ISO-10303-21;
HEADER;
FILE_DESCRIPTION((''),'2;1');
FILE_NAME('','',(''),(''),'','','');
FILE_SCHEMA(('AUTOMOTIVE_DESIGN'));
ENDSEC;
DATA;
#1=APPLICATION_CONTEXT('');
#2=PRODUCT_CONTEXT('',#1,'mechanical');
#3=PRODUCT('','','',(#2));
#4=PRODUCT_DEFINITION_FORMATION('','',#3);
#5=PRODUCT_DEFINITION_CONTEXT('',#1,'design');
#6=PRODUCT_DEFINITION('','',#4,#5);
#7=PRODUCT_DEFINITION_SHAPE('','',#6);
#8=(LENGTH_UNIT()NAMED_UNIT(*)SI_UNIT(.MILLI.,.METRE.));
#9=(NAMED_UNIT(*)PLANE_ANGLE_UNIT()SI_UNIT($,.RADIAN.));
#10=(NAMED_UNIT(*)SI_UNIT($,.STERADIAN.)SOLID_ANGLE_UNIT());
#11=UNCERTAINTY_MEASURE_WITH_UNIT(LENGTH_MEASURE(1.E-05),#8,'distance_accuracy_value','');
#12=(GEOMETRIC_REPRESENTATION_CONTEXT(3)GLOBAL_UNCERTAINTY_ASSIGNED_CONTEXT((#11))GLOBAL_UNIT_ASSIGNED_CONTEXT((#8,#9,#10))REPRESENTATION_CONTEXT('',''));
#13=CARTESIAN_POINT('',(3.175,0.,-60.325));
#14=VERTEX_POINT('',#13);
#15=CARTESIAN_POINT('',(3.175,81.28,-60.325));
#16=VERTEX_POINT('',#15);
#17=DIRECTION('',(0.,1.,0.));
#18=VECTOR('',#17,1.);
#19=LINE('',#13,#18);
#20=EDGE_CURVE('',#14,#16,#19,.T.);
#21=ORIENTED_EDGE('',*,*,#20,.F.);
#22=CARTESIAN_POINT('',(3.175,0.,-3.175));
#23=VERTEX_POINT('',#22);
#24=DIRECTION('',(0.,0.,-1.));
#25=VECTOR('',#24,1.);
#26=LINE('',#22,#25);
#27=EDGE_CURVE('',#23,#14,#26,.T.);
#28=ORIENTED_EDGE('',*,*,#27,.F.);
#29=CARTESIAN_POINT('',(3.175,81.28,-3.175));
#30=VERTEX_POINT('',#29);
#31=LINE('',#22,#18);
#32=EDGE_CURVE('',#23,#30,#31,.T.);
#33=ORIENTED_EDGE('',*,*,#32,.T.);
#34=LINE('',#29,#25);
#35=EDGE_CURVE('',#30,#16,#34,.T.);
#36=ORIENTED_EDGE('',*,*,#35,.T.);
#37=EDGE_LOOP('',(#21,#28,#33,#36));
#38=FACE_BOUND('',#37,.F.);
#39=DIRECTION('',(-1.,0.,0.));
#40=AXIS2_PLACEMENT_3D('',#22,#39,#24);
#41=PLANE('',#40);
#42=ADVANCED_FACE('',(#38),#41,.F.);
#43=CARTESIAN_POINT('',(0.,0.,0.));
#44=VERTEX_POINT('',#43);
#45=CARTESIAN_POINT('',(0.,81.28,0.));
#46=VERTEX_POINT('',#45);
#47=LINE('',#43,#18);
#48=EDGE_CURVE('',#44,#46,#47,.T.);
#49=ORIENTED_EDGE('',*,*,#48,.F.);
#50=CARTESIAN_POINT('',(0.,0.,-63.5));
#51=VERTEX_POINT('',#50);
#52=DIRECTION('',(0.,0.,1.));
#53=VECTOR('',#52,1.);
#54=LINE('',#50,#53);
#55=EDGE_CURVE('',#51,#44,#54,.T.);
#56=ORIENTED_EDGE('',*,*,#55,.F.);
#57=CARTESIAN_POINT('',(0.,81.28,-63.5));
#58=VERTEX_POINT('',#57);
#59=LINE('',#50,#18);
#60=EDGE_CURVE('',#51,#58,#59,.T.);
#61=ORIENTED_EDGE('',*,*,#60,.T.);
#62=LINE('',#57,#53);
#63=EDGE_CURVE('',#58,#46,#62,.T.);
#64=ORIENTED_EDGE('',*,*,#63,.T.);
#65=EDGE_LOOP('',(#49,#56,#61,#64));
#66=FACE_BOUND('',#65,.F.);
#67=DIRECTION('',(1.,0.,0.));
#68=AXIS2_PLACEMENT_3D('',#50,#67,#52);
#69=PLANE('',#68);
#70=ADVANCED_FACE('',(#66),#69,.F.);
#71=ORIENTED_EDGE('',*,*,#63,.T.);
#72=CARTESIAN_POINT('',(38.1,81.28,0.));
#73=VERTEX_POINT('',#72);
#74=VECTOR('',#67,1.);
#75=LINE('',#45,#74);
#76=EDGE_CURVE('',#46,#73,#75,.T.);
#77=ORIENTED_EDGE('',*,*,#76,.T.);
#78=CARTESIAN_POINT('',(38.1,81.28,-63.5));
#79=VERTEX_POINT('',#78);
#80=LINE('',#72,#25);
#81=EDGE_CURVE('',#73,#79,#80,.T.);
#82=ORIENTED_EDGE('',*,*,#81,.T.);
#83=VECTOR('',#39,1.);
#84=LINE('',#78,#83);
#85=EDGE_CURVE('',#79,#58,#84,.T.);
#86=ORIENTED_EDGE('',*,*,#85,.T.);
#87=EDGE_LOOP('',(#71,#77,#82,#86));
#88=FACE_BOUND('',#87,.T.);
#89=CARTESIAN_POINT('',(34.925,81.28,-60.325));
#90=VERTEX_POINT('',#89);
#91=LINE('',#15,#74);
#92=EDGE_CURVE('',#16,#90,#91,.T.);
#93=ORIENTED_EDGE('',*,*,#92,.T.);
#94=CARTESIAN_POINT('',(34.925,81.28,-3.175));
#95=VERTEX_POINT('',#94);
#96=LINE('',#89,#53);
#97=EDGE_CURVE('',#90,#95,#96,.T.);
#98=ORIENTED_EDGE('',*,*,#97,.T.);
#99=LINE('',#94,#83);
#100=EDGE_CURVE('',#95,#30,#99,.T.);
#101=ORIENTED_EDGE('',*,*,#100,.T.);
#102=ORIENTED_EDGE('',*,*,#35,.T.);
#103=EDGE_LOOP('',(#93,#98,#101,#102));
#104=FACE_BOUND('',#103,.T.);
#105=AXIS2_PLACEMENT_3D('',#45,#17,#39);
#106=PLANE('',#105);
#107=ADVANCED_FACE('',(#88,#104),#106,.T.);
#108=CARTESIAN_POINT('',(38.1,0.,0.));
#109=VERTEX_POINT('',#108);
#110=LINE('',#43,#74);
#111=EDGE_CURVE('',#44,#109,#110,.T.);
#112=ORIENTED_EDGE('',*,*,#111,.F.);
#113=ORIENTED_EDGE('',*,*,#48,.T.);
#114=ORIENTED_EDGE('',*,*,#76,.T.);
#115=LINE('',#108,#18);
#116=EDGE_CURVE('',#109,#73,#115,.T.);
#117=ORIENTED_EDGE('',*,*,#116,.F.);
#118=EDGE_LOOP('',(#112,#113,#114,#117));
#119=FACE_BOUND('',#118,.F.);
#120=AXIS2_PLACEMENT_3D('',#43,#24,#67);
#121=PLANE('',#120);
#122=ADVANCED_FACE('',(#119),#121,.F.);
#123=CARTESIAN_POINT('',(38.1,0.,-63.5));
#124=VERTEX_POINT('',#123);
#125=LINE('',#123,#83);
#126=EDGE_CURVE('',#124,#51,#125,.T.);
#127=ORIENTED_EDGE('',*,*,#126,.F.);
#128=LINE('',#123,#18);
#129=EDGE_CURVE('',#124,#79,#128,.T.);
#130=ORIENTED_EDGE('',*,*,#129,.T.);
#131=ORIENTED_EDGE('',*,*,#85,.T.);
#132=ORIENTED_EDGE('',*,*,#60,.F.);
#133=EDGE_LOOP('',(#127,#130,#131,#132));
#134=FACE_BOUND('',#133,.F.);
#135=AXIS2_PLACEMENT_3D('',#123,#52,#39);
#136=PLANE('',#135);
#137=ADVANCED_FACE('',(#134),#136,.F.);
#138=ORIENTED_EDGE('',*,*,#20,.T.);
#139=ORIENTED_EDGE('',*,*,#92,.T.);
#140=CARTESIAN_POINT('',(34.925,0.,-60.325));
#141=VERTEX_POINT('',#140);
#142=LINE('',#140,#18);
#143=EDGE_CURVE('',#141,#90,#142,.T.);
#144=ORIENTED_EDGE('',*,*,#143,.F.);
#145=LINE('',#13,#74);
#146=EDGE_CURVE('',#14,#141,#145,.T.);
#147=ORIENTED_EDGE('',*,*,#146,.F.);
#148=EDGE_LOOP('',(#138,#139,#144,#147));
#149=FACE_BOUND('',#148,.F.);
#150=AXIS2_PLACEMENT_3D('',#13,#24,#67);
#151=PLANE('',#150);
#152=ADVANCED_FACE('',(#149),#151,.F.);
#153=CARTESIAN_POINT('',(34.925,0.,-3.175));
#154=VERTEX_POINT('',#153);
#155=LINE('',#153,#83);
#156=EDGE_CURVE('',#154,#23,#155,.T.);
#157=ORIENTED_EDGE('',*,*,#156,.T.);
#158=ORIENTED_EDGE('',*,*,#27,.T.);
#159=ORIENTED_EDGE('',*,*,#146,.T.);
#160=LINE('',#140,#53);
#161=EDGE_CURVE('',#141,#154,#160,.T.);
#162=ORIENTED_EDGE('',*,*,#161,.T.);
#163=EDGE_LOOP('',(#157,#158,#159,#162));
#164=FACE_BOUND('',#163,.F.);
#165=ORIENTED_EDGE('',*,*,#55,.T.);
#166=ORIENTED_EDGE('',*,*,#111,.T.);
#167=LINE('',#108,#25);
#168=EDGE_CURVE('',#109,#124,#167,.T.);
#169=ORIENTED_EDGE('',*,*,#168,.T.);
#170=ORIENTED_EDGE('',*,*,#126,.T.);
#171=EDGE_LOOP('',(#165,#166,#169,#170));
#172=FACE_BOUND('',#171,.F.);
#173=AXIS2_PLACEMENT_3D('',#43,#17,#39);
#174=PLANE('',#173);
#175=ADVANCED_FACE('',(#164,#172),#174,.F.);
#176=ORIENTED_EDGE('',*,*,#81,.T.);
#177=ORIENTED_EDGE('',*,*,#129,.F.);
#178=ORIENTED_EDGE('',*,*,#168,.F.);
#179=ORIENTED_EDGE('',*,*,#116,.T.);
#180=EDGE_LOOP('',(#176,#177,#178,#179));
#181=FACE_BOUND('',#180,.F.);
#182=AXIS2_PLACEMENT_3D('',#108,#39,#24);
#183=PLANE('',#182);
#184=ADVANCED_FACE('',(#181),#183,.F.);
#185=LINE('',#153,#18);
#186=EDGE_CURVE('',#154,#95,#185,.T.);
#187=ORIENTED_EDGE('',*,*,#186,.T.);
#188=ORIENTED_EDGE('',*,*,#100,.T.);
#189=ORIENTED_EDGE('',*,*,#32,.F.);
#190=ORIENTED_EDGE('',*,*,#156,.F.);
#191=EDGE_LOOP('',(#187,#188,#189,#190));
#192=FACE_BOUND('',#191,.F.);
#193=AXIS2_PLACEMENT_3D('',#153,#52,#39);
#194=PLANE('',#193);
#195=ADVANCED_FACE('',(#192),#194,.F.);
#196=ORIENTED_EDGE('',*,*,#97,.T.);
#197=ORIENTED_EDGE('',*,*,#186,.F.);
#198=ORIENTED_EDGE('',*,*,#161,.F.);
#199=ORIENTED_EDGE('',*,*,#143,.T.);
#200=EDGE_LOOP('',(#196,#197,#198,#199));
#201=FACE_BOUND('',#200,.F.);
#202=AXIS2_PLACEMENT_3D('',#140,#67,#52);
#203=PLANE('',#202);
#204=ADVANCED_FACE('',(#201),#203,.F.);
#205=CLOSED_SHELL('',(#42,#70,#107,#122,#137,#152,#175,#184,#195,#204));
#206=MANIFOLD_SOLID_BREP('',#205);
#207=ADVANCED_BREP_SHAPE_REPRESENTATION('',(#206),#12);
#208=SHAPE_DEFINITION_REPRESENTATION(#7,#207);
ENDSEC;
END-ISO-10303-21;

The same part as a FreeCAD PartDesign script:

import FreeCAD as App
import Part
import Sketcher

V = App.Vector
Q = App.Units.Quantity


def add_polygon(sketch, points):
    """Adds a closed chain of lines whose ends are joined by coincident constraints."""
    first, n = sketch.GeometryCount, len(points)
    for a, b in zip(points, points[1:] + points[:1]):
        sketch.addGeometry(Part.LineSegment(App.Vector(*a, 0), App.Vector(*b, 0)), False)
    for i in range(n):
        sketch.addConstraint(Sketcher.Constraint("Coincident", first + i, 2, first + (i + 1) % n, 1))

doc = App.newDocument("Part")
params = doc.addObject("Spreadsheet::Sheet", "Params")
for row, (alias, value) in enumerate([
    ("sketch1_width", "1.5 in"),
    ("sketch1_height", "2.5 in"),
    ("pad1_length", "3.2 in"),
], start=1):
    params.set(f"A{row}", alias)
    params.set(f"B{row}", "=" + value)
    params.setAlias(f"B{row}", alias)

body = doc.addObject("PartDesign::Body", "Body")

sketch1 = doc.addObject("Sketcher::SketchObject", "Sketch")
body.addObject(sketch1)
sketch1.AttachmentSupport = (doc.XZ_Plane, [""])
sketch1.MapMode = "FlatFace"
add_polygon(sketch1, [(0, -64), (0, 0), (38, 0), (38, -64)])
add_polygon(sketch1, [(3, -3), (3, -60), (35, -60), (35, -3)])
sketch1.addConstraint([
    Sketcher.Constraint("Vertical", 0),
    Sketcher.Constraint("Horizontal", 1),
    Sketcher.Constraint("Vertical", 2),
    Sketcher.Constraint("Horizontal", 3),
    Sketcher.Constraint("Vertical", 4),
    Sketcher.Constraint("Horizontal", 5),
    Sketcher.Constraint("Vertical", 6),
    Sketcher.Constraint("Horizontal", 7),
    Sketcher.Constraint("Coincident", 0, 2, -1, 1),
    Sketcher.Constraint("DistanceX", 1, 1, 1, 2, Q("1.5 in")),
    Sketcher.Constraint("DistanceY", 0, 1, 0, 2, Q("2.5 in")),
    Sketcher.Constraint("DistanceX", -1, 1, 4, 2, Q("0.125 in")),
    Sketcher.Constraint("DistanceY", 6, 2, -1, 1, Q("0.125 in")),
    Sketcher.Constraint("DistanceY", 3, 2, 4, 2, Q("0.125 in")),
    Sketcher.Constraint("DistanceX", 5, 2, 2, 2, Q("0.125 in")),
])
sketch1.setExpression("Constraints[17]", "Params.sketch1_width")
sketch1.setExpression("Constraints[18]", "Params.sketch1_height")
pad1 = doc.addObject("PartDesign::Pad", "Pad")
body.addObject(pad1)
pad1.Profile = sketch1
pad1.setExpression("Length", "Params.pad1_length")
pad1.Reversed = True

doc.recompute()
